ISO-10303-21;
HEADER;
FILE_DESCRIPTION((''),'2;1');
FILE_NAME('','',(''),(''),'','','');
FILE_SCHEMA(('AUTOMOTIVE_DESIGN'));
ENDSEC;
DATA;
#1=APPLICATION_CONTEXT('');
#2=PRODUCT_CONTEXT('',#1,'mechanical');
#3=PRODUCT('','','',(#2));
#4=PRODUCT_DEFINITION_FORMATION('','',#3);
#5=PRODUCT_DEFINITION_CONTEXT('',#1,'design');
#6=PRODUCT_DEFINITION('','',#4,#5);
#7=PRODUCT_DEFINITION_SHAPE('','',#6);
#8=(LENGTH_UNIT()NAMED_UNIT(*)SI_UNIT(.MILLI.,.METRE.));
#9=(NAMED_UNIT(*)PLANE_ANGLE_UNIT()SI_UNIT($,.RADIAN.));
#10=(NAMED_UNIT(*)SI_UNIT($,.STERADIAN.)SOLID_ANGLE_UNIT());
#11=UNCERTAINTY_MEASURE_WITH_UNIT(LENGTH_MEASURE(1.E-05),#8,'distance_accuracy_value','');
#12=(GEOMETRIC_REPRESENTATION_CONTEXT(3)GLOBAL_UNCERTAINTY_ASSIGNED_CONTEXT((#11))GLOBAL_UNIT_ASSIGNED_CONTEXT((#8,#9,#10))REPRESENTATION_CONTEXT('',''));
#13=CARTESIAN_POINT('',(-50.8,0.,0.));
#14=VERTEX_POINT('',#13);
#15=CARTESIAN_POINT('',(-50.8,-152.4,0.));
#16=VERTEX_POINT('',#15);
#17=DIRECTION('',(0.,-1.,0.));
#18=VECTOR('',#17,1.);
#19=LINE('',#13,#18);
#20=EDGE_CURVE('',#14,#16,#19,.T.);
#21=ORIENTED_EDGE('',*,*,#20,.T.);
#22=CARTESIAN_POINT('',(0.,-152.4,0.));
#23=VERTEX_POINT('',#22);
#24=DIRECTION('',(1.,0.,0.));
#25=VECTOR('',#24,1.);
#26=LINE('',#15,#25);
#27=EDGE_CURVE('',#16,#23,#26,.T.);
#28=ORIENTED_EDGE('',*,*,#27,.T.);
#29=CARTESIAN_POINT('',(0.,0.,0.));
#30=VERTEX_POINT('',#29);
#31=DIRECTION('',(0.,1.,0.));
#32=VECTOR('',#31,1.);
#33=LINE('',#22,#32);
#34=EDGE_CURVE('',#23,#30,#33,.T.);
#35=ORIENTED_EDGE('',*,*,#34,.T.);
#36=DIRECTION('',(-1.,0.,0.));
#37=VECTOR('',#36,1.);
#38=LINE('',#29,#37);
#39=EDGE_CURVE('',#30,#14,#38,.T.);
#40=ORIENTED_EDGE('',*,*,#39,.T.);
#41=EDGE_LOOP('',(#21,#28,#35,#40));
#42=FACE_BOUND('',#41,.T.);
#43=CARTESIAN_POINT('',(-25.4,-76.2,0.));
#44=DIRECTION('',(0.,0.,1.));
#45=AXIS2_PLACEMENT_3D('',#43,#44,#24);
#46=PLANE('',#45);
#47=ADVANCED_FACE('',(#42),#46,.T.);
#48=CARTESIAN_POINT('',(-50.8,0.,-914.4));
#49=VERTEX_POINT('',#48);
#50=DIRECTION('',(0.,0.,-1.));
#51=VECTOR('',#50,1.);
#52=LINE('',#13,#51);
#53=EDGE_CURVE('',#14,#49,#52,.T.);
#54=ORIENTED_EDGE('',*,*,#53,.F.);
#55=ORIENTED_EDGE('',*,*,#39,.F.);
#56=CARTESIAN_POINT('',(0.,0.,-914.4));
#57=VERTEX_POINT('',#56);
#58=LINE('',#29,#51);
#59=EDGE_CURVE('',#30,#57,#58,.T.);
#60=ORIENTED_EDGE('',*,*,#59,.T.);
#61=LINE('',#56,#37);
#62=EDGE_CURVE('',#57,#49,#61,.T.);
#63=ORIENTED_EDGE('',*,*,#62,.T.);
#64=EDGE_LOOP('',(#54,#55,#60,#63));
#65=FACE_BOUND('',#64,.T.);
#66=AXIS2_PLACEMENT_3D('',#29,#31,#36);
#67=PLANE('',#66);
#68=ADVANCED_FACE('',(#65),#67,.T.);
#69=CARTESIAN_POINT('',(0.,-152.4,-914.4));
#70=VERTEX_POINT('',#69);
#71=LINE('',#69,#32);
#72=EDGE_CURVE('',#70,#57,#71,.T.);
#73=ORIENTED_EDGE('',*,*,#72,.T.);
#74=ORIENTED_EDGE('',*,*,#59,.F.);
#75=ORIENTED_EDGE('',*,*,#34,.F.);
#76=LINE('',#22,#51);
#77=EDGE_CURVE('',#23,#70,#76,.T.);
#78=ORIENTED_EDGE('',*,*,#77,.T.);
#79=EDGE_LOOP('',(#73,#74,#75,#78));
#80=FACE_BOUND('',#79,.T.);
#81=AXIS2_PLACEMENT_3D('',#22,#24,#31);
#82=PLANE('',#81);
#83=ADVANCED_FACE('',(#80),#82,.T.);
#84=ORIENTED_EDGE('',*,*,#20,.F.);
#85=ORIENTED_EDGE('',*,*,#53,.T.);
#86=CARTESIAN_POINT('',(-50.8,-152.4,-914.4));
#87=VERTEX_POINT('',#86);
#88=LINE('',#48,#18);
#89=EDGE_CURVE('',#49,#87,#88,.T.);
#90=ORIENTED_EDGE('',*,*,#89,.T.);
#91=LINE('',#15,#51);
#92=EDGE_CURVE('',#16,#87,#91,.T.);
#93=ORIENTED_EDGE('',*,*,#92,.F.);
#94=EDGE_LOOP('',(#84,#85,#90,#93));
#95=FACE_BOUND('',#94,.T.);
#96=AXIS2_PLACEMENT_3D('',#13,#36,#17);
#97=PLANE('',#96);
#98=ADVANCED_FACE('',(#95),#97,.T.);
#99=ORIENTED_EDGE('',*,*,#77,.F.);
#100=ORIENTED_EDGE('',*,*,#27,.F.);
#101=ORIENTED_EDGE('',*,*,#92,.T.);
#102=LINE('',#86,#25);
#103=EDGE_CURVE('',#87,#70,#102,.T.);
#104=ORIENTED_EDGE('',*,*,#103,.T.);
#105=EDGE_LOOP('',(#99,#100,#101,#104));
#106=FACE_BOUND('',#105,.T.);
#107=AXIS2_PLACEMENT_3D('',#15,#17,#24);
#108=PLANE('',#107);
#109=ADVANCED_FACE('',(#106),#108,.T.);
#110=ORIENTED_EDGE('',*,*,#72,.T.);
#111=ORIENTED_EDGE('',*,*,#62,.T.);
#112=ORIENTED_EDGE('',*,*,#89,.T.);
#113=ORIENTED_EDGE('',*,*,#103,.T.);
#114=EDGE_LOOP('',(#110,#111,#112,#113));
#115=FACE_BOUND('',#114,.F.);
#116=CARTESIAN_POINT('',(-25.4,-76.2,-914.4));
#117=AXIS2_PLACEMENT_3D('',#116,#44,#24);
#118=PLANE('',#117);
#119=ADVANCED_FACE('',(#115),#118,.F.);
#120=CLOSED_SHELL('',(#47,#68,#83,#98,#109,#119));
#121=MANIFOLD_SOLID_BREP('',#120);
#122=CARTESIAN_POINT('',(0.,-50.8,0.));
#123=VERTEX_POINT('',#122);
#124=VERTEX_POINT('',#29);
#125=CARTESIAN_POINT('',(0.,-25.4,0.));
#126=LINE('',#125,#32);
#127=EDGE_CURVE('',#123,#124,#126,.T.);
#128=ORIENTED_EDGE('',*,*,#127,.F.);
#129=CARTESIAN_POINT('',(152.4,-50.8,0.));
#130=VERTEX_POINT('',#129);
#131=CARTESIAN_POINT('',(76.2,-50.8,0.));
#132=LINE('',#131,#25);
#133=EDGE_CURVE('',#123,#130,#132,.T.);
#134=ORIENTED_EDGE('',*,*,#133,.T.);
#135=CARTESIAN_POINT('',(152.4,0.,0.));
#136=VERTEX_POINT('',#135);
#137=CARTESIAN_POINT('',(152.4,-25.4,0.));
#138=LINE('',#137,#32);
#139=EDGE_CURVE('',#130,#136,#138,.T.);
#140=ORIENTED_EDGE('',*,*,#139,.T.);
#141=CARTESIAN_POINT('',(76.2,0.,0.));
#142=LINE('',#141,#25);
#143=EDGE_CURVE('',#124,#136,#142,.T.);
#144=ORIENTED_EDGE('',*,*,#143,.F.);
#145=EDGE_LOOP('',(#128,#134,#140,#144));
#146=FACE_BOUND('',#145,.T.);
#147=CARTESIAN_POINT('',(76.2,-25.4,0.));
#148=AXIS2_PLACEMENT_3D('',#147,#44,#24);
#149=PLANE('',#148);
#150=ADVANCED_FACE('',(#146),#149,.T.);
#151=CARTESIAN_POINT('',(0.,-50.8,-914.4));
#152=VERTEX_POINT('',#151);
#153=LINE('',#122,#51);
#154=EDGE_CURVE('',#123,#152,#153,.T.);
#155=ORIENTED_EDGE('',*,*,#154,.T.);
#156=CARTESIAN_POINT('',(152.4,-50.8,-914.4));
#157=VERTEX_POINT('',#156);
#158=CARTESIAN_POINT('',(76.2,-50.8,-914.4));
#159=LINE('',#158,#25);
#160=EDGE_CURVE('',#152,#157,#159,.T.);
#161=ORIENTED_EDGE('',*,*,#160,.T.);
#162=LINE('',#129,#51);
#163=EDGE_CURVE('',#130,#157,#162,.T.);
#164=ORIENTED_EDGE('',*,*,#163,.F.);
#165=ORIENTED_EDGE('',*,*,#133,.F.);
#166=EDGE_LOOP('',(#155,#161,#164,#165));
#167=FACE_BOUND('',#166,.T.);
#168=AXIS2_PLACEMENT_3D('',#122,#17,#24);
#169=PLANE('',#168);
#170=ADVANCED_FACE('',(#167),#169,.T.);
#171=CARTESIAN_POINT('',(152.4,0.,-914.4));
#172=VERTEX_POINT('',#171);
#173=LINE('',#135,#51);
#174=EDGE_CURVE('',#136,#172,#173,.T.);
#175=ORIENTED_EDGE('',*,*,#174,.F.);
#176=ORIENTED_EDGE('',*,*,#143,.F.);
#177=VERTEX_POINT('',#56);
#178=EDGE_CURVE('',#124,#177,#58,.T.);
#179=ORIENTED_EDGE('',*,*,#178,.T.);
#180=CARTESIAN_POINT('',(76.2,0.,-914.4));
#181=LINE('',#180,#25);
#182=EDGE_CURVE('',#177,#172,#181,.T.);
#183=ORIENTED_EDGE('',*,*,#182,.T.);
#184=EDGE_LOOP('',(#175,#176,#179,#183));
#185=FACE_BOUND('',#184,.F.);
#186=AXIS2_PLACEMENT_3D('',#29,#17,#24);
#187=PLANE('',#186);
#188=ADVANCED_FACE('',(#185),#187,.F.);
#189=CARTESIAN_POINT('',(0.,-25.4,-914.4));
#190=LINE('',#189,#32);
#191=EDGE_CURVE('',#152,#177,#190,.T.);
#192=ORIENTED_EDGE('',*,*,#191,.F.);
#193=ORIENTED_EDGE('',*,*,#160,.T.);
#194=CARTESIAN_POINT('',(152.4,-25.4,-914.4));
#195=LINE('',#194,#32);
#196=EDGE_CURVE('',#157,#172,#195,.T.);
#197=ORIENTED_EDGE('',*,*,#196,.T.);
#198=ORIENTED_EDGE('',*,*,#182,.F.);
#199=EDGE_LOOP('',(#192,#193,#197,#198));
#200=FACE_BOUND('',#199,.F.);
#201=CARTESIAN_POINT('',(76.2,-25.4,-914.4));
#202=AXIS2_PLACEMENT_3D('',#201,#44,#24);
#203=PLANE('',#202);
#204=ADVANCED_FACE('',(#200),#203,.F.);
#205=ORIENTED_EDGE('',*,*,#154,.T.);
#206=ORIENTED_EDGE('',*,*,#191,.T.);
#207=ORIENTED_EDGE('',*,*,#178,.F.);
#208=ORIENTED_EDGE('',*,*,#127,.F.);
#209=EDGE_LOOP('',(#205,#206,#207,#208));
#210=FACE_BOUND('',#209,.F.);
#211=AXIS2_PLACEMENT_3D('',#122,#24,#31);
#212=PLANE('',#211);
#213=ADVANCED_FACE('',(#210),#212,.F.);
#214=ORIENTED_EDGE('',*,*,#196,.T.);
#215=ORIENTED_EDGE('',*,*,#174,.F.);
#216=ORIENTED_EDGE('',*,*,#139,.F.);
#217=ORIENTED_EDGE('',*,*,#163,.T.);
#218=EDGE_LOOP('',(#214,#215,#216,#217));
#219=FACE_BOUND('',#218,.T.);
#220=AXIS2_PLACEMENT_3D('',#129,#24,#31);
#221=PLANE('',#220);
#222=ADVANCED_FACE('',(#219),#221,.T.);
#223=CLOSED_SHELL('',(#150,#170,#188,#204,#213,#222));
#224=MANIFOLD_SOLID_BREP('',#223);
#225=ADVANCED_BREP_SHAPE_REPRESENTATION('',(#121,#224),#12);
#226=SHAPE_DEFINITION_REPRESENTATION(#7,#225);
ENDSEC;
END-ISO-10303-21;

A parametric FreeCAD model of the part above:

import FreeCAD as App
import Part
import Sketcher

V = App.Vector
Q = App.Units.Quantity


def add_polygon(sketch, points):
    """Adds a closed chain of lines whose ends are joined by coincident constraints."""
    first, n = sketch.GeometryCount, len(points)
    for a, b in zip(points, points[1:] + points[:1]):
        sketch.addGeometry(Part.LineSegment(App.Vector(*a, 0), App.Vector(*b, 0)), False)
    for i in range(n):
        sketch.addConstraint(Sketcher.Constraint("Coincident", first + i, 2, first + (i + 1) % n, 1))

doc = App.newDocument("Part")
params = doc.addObject("Spreadsheet::Sheet", "Params")
for row, (alias, value) in enumerate([
    ("sketch1_width", "6 in"),
    ("sketch1_height", "2 in"),
    ("pad1_length", "36 in"),
    ("sketch2_width", "2 in"),
    ("sketch2_height", "6 in"),
    ("pad2_length", "36 in"),
], start=1):
    params.set(f"A{row}", alias)
    params.set(f"B{row}", "=" + value)
    params.setAlias(f"B{row}", alias)

body = doc.addObject("PartDesign::Body", "Body")

# Sketch on XY plane
sketch1 = body.newObject("Sketcher::SketchObject", "Sketch")
sketch1.AttachmentSupport = (doc.getObject("XY_Plane"), [""])
sketch1.MapMode = "FlatFace"
add_polygon(sketch1, [(0, 0), (0, -51), (152, -51), (152, 0)])  # lines 0-3
sketch1.addConstraint([
    Sketcher.Constraint("Vertical", 0),
    Sketcher.Constraint("Horizontal", 1),
    Sketcher.Constraint("Vertical", 2),
    Sketcher.Constraint("Horizontal", 3),
    Sketcher.Constraint("Coincident", 3, 2, -1, 1),
    Sketcher.Constraint("DistanceX", 1, 1, 1, 2, Q("6 in")),
    Sketcher.Constraint("DistanceY", 0, 2, 0, 1, Q("2 in")),
])
sketch1.setExpression("Constraints[9]", "Params.sketch1_width")
sketch1.setExpression("Constraints[10]", "Params.sketch1_height")
pad1 = body.newObject("PartDesign::Pad", "Pad")
pad1.Profile = sketch1
pad1.setExpression("Length", "Params.pad1_length")
pad1.Reversed = True
body2 = doc.addObject("PartDesign::Body", "Body001")

# Sketch on XY plane
sketch2 = body2.newObject("Sketcher::SketchObject", "Sketch001")
sketch2.AttachmentSupport = (doc.getObject("XY_Plane001"), [""])
sketch2.MapMode = "FlatFace"
add_polygon(sketch2, [(0, 0), (-51, 0), (-51, -152), (0, -152)])  # lines 0-3
sketch2.addConstraint([
    Sketcher.Constraint("Horizontal", 0),
    Sketcher.Constraint("Vertical", 1),
    Sketcher.Constraint("Horizontal", 2),
    Sketcher.Constraint("Vertical", 3),
    Sketcher.Constraint("Coincident", 3, 2, -1, 1),
    Sketcher.Constraint("DistanceX", 0, 2, 0, 1, Q("2 in")),
    Sketcher.Constraint("DistanceY", 1, 2, 1, 1, Q("6 in")),
])
sketch2.setExpression("Constraints[9]", "Params.sketch2_width")
sketch2.setExpression("Constraints[10]", "Params.sketch2_height")
pad2 = body2.newObject("PartDesign::Pad", "Pad001")
pad2.Profile = sketch2
pad2.setExpression("Length", "Params.pad2_length")
pad2.Reversed = True

doc.recompute()
